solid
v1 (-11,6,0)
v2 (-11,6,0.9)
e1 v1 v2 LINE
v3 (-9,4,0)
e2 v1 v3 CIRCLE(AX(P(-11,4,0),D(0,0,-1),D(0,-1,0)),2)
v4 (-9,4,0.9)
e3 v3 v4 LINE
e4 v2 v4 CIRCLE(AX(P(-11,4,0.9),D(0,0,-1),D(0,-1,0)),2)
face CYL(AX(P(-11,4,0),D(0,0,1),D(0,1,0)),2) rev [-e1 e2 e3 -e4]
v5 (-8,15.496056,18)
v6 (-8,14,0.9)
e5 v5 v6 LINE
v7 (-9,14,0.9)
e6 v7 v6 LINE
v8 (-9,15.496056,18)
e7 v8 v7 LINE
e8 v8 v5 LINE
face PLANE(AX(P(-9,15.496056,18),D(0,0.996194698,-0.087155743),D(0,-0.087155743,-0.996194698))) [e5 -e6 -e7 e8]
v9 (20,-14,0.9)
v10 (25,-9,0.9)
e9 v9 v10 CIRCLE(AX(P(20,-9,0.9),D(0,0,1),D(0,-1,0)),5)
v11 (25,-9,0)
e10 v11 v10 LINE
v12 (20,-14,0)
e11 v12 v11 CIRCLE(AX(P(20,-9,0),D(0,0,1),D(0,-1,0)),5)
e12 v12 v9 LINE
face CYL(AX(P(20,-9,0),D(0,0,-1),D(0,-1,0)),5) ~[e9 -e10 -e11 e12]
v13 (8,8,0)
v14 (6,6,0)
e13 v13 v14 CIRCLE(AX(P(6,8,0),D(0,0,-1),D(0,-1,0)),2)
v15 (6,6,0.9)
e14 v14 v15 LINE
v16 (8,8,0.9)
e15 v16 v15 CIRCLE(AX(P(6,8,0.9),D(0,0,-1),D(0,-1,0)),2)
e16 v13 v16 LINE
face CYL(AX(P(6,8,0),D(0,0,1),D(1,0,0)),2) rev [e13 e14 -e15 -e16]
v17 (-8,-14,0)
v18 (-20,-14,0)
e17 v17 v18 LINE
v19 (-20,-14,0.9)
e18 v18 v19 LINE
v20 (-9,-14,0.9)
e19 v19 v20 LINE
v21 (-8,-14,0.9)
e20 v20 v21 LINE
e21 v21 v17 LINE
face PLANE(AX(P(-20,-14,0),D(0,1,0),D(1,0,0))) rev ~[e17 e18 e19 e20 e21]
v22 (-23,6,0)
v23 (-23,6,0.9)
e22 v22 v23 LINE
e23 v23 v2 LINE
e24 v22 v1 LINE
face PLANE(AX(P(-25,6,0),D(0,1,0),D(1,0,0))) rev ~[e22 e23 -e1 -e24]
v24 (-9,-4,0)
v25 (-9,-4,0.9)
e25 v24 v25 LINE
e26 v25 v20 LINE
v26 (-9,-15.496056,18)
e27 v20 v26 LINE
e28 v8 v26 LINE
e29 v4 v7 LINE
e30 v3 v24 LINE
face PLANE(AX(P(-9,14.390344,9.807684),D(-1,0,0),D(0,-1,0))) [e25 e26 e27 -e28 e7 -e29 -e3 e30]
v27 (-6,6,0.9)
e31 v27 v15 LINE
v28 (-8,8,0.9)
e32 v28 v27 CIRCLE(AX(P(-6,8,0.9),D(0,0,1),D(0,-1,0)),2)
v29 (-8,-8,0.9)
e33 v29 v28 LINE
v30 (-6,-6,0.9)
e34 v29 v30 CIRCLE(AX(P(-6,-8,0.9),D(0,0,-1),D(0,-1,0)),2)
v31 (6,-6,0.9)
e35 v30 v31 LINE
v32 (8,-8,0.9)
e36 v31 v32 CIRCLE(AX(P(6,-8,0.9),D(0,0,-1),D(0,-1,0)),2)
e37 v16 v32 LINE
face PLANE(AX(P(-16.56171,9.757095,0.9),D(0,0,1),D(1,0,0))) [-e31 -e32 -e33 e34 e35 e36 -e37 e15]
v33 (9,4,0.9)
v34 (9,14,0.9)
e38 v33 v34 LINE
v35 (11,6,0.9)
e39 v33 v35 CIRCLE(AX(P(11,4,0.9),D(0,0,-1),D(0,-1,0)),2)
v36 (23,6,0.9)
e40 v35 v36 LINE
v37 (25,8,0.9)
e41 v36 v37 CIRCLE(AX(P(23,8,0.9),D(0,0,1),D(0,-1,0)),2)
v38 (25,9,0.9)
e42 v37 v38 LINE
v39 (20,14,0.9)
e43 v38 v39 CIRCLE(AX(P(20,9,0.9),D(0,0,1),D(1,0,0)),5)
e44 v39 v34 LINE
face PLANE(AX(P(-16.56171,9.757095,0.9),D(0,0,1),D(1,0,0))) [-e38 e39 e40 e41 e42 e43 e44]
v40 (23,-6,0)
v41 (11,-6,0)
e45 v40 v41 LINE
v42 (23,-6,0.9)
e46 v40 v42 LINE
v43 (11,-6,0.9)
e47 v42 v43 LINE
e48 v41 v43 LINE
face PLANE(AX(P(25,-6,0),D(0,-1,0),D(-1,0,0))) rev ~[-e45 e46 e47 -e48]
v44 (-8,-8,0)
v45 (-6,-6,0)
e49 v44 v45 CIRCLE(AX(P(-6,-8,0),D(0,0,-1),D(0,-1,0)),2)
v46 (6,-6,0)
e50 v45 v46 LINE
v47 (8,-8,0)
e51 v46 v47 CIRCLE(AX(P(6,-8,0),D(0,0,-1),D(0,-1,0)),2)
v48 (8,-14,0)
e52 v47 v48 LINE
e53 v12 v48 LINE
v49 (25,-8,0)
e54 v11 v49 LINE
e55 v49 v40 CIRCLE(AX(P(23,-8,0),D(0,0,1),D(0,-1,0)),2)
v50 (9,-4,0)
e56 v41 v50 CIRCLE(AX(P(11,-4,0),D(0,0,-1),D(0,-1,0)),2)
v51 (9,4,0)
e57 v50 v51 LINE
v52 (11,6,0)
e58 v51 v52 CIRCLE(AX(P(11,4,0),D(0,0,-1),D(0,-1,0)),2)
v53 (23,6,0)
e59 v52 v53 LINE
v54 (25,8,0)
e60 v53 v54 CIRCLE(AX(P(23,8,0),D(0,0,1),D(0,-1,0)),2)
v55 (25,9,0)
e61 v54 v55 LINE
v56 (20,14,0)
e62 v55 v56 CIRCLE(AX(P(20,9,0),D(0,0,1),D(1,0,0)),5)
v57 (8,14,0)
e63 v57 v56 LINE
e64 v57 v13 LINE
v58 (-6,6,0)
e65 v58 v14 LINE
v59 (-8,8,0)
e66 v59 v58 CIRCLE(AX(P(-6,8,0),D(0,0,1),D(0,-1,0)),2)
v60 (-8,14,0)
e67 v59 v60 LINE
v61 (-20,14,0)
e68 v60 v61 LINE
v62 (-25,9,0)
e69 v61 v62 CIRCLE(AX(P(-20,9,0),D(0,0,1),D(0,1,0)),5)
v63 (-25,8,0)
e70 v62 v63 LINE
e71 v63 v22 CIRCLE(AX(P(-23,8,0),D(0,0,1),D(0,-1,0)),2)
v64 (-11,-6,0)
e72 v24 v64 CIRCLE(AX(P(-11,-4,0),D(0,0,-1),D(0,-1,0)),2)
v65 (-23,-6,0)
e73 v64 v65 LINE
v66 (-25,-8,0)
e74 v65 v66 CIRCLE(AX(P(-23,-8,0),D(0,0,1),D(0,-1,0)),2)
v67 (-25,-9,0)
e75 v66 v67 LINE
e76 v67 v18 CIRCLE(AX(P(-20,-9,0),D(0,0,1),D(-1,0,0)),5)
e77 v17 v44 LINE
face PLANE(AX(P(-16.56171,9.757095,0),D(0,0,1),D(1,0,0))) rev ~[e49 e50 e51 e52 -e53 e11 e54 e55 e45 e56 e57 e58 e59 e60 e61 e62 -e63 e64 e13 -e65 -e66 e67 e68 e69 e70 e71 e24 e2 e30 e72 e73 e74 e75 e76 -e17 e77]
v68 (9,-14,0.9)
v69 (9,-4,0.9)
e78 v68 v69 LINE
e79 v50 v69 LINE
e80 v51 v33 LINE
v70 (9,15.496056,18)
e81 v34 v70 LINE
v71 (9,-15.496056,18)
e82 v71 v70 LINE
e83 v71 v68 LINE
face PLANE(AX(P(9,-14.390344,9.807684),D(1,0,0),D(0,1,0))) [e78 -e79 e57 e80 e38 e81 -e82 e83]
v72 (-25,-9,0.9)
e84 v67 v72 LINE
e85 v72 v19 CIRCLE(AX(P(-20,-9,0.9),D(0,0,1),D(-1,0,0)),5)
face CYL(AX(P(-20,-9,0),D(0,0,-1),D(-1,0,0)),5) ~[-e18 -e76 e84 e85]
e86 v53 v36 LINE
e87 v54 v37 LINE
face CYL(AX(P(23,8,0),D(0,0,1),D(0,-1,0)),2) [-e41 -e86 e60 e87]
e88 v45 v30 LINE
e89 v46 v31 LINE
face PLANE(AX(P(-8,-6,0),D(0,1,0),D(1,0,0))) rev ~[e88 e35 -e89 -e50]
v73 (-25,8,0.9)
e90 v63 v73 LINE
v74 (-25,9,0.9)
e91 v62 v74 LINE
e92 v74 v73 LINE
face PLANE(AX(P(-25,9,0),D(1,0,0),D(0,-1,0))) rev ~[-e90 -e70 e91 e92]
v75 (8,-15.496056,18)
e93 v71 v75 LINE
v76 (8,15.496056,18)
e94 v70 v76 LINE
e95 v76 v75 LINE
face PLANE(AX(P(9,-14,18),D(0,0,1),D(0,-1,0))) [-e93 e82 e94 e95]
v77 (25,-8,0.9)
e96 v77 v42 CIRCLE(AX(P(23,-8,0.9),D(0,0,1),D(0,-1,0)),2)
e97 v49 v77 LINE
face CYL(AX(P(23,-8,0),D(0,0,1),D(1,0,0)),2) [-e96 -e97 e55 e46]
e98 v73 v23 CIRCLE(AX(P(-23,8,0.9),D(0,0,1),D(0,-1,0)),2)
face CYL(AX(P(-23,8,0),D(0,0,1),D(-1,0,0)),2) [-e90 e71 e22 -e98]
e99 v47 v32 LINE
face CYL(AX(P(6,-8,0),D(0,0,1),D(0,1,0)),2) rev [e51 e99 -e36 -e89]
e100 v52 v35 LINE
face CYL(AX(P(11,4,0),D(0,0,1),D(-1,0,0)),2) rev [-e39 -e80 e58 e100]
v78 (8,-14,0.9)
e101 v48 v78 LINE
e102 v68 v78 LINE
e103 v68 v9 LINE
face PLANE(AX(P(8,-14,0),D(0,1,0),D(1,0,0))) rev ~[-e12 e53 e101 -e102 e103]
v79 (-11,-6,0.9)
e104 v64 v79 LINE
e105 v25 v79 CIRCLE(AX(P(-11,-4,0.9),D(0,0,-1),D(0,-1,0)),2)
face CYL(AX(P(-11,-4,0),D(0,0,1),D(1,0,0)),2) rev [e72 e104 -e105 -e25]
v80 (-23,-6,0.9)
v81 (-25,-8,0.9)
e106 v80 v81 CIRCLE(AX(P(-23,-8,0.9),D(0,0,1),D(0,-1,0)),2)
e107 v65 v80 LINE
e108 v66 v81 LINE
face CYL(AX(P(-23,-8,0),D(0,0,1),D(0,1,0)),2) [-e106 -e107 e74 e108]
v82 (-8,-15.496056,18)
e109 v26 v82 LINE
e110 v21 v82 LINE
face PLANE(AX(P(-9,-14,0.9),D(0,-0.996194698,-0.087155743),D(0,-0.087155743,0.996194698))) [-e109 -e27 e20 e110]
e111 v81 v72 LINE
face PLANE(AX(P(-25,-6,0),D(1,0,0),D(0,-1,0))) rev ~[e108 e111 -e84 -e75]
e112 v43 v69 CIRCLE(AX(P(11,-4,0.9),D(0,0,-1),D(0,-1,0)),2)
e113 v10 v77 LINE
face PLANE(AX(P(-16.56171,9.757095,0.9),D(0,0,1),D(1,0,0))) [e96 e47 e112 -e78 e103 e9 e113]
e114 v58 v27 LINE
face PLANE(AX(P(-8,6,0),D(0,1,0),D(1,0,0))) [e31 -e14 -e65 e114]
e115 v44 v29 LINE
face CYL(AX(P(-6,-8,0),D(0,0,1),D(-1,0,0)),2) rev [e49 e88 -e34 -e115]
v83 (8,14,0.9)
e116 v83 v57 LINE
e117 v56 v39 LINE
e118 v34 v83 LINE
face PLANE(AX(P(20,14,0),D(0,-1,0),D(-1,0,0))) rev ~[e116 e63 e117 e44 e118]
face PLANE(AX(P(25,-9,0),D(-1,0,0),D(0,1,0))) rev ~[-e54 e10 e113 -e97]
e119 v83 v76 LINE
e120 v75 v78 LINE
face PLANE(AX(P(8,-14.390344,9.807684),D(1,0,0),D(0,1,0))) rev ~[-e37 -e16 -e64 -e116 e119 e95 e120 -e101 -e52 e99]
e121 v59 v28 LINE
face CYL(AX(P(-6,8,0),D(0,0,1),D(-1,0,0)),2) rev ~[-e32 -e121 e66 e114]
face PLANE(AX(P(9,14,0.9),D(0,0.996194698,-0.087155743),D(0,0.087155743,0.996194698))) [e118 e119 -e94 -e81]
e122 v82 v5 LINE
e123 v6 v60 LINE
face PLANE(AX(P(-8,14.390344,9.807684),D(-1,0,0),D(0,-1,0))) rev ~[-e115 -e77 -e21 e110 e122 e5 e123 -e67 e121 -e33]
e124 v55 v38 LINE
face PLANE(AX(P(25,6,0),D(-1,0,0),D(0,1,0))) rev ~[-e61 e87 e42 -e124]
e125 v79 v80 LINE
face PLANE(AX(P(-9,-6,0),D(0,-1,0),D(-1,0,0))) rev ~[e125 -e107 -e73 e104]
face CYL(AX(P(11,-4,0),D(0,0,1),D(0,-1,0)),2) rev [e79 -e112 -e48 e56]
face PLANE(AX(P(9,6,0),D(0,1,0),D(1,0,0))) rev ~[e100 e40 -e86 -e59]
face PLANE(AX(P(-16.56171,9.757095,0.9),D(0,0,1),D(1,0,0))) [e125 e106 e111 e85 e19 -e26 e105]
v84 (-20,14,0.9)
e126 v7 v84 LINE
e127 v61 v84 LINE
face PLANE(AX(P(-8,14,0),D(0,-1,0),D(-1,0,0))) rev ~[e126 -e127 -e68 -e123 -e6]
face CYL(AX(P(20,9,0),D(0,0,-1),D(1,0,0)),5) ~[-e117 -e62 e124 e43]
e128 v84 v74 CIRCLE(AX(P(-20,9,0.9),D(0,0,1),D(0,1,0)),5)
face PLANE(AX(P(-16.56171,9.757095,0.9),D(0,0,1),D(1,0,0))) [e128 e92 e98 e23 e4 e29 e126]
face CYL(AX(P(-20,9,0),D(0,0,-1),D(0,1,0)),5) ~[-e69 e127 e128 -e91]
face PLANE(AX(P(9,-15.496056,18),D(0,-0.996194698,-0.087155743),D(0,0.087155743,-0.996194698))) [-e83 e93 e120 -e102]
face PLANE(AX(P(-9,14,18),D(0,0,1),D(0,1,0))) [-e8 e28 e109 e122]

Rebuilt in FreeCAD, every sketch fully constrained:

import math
import FreeCAD as App
import Part
import Sketcher
Q = App.Units.Quantity


def edges_at(feature, points):
    """Names of the edges that pass closest to the given points."""
    edges = feature.Shape.Edges
    near = lambda p: min(range(len(edges)), key=lambda i: edges[i].distToShape(Part.Vertex(*p))[0])
    return sorted({f"Edge{near(p) + 1}" for p in points})


def add_polygon(sketch, points):
    """Adds a closed chain of lines whose ends are joined by coincident constraints."""
    first, n = sketch.GeometryCount, len(points)
    for a, b in zip(points, points[1:] + points[:1]):
        sketch.addGeometry(Part.LineSegment(App.Vector(*a, 0), App.Vector(*b, 0)), False)
    for i in range(n):
        sketch.addConstraint(Sketcher.Constraint("Coincident", first + i, 2, first + (i + 1) % n, 1))

doc = App.newDocument("Part")
body = doc.addObject("PartDesign::Body", "Body")

# Sketch on XY plane
sketch1 = body.newObject("Sketcher::SketchObject", "Sketch")
sketch1.AttachmentSupport = (doc.getObject("XY_Plane"), [""])
sketch1.MapMode = "FlatFace"
sketch1.addGeometry([
    Part.ArcOfCircle(Part.Circle(App.Vector(-20, 9, 0), App.Vector(0, 0, 1), 5), math.radians(90), math.radians(180)),  # 0
    Part.LineSegment(App.Vector(-25, 9, 0), App.Vector(-25, 6, 0)),  # 1
    Part.LineSegment(App.Vector(-25, 6, 0), App.Vector(-9, 6, 0)),  # 2
    Part.LineSegment(App.Vector(-9, 6, 0), App.Vector(-9, -6, 0)),  # 3
    Part.LineSegment(App.Vector(-9, -6, 0), App.Vector(-25, -6, 0)),  # 4
    Part.LineSegment(App.Vector(-25, -6, 0), App.Vector(-25, -9, 0)),  # 5
    Part.ArcOfCircle(Part.Circle(App.Vector(-20, -9, 0), App.Vector(0, 0, 1), 5), math.radians(180), math.radians(270)),  # 6
    Part.LineSegment(App.Vector(-20, -14, 0), App.Vector(-8, -14, 0)),  # 7
    Part.LineSegment(App.Vector(-8, -14, 0), App.Vector(-8, -6, 0)),  # 8
    Part.LineSegment(App.Vector(-8, -6, 0), App.Vector(8, -6, 0)),  # 9
    Part.LineSegment(App.Vector(8, -6, 0), App.Vector(8, -14, 0)),  # 10
    Part.LineSegment(App.Vector(8, -14, 0), App.Vector(20, -14, 0)),  # 11
    Part.ArcOfCircle(Part.Circle(App.Vector(20, -9, 0), App.Vector(0, 0, 1), 5), math.radians(-90), math.radians(0)),  # 12
    Part.LineSegment(App.Vector(25, -9, 0), App.Vector(25, -6, 0)),  # 13
    Part.LineSegment(App.Vector(25, -6, 0), App.Vector(9, -6, 0)),  # 14
    Part.LineSegment(App.Vector(9, -6, 0), App.Vector(9, 6, 0)),  # 15
    Part.LineSegment(App.Vector(9, 6, 0), App.Vector(25, 6, 0)),  # 16
    Part.LineSegment(App.Vector(25, 6, 0), App.Vector(25, 9, 0)),  # 17
    Part.ArcOfCircle(Part.Circle(App.Vector(20, 9, 0), App.Vector(0, 0, 1), 5), math.radians(0), math.radians(90)),  # 18
    Part.LineSegment(App.Vector(20, 14, 0), App.Vector(8, 14, 0)),  # 19
    Part.LineSegment(App.Vector(8, 14, 0), App.Vector(8, 6, 0)),  # 20
    Part.LineSegment(App.Vector(8, 6, 0), App.Vector(-8, 6, 0)),  # 21
    Part.LineSegment(App.Vector(-8, 6, 0), App.Vector(-8, 14, 0)),  # 22
    Part.LineSegment(App.Vector(-8, 14, 0), App.Vector(-20, 14, 0)),  # 23
], False)
sketch1.addConstraint([
    Sketcher.Constraint("Tangent", 0, 2, 1, 1),
    Sketcher.Constraint("Coincident", 1, 2, 2, 1),
    Sketcher.Constraint("Coincident", 2, 2, 3, 1),
    Sketcher.Constraint("Coincident", 3, 2, 4, 1),
    Sketcher.Constraint("Coincident", 4, 2, 5, 1),
    Sketcher.Constraint("Tangent", 5, 2, 6, 1),
    Sketcher.Constraint("Tangent", 6, 2, 7, 1),
    Sketcher.Constraint("Coincident", 7, 2, 8, 1),
    Sketcher.Constraint("Coincident", 8, 2, 9, 1),
    Sketcher.Constraint("Coincident", 9, 2, 10, 1),
    Sketcher.Constraint("Coincident", 10, 2, 11, 1),
    Sketcher.Constraint("Tangent", 11, 2, 12, 1),
    Sketcher.Constraint("Tangent", 12, 2, 13, 1),
    Sketcher.Constraint("Coincident", 13, 2, 14, 1),
    Sketcher.Constraint("Coincident", 14, 2, 15, 1),
    Sketcher.Constraint("Coincident", 15, 2, 16, 1),
    Sketcher.Constraint("Coincident", 16, 2, 17, 1),
    Sketcher.Constraint("Tangent", 17, 2, 18, 1),
    Sketcher.Constraint("Tangent", 18, 2, 19, 1),
    Sketcher.Constraint("Coincident", 19, 2, 20, 1),
    Sketcher.Constraint("Coincident", 20, 2, 21, 1),
    Sketcher.Constraint("Coincident", 21, 2, 22, 1),
    Sketcher.Constraint("Coincident", 22, 2, 23, 1),
    Sketcher.Constraint("Tangent", 23, 2, 0, 1),
    Sketcher.Constraint("Vertical", 1),
    Sketcher.Constraint("Horizontal", 2),
    Sketcher.Constraint("Vertical", 3),
    Sketcher.Constraint("Horizontal", 4),
    Sketcher.Constraint("Vertical", 5),
    Sketcher.Constraint("Horizontal", 7),
    Sketcher.Constraint("Vertical", 8),
    Sketcher.Constraint("Horizontal", 9),
    Sketcher.Constraint("Vertical", 10),
    Sketcher.Constraint("Horizontal", 11),
    Sketcher.Constraint("Vertical", 13),
    Sketcher.Constraint("Horizontal", 14),
    Sketcher.Constraint("Vertical", 15),
    Sketcher.Constraint("Horizontal", 16),
    Sketcher.Constraint("Vertical", 17),
    Sketcher.Constraint("Horizontal", 19),
    Sketcher.Constraint("Vertical", 20),
    Sketcher.Constraint("Horizontal", 21),
    Sketcher.Constraint("Vertical", 22),
    Sketcher.Constraint("Horizontal", 23),
    Sketcher.Constraint("Equal", 0, 6),
    Sketcher.Constraint("Equal", 6, 12),
    Sketcher.Constraint("Equal", 12, 18),
    Sketcher.Constraint("Symmetric", 0, 3, 12, 3, -1, 1),
    Sketcher.Constraint("Symmetric", 6, 3, 18, 3, -1, 1),
    Sketcher.Constraint("Symmetric", 2, 2, 14, 2, -1, 1),
    Sketcher.Constraint("Symmetric", 8, 2, 20, 2, -1, 1),
    Sketcher.Constraint("Symmetric", 6, 3, 12, 3, -2),
    Sketcher.Constraint("Horizontal", 4, 2, 8, 2),
    Sketcher.Constraint("Horizontal", 9, 2, 13, 2),
    Sketcher.Constraint("Horizontal", 2, 2, 15, 2),
    Sketcher.Constraint("Vertical", 10, 2, 19, 2),
    Sketcher.Constraint("Vertical", 8, 2, 21, 2),
    Sketcher.Constraint("Equal", 4, 9),
    Sketcher.Constraint("Equal", 23, 3),
    Sketcher.Constraint("Radius", 0, Q("5 mm")),
    Sketcher.Constraint("DistanceX", 2, 1, 2, 2, Q("16 mm")),
    Sketcher.Constraint("DistanceX", 7, 1, 7, 2, Q("12 mm")),
    Sketcher.Constraint("DistanceY", 1, 2, 1, 1, Q("3 mm")),
])
pad1 = body.newObject("PartDesign::Pad", "Pad")
pad1.Profile = sketch1
pad1.Length = 0.9

# Sketch on XY plane
sketch2 = body.newObject("Sketcher::SketchObject", "Sketch001")
sketch2.AttachmentSupport = (doc.getObject("XY_Plane"), [""])
sketch2.MapMode = "FlatFace"
add_polygon(sketch2, [(-9, -14), (-8, -14), (-8, 14), (-9, 14)])  # lines 0-3
add_polygon(sketch2, [(8, 14), (8, -14), (9, -14), (9, 14)])  # lines 4-7
sketch2.addConstraint([
    Sketcher.Constraint("Horizontal", 0),
    Sketcher.Constraint("Vertical", 1),
    Sketcher.Constraint("Horizontal", 2),
    Sketcher.Constraint("Vertical", 3),
    Sketcher.Constraint("Vertical", 4),
    Sketcher.Constraint("Horizontal", 5),
    Sketcher.Constraint("Vertical", 6),
    Sketcher.Constraint("Horizontal", 7),
    Sketcher.Constraint("Symmetric", 1, 2, 4, 2, -1, 1),
    Sketcher.Constraint("Symmetric", 3, 2, 6, 2, -1, 1),
    Sketcher.Constraint("Horizontal", 3, 2, 4, 2),
    Sketcher.Constraint("DistanceX", 0, 1, 0, 2, Q("1 mm")),
    Sketcher.Constraint("DistanceY", 1, 1, 1, 2, Q("28 mm")),
    Sketcher.Constraint("DistanceX", 0, 2, -1, 1, Q("8 mm")),
])
pad2 = body.newObject("PartDesign::Pad", "Pad001")
pad2.Profile = sketch2
pad2.Length = 18
doc.recompute()

fillet = body.newObject("PartDesign::Fillet", "Fillet")
fillet.Base = (pad2, edges_at(pad2, [
    (-25, 6, 0.45),
    (-9, 6, 0.45),
    (-9, -6, 0.45),
    (-25, -6, 0.45),
    (-8, 6, 0.45),
    (8, 6, 0.45),
    (25, 6, 0.45),
    (25, -6, 0.45),
    (9, 6, 0.45),
    (9, -6, 0.45),
    (8, -6, 0.45),
    (-8, -6, 0.45),
]))
fillet.Radius = 2

# Sketch on YZ plane
sketch3 = body.newObject("Sketcher::SketchObject", "Sketch002")
sketch3.AttachmentSupport = (doc.getObject("YZ_Plane"), [""])
sketch3.MapMode = "FlatFace"
sketch3.AttachmentOffset = App.Placement(App.Vector(0, 0, 9), App.Rotation())
add_polygon(sketch3, [(-15.5, 18), (-14, 0.9), (-14, 18)])  # lines 0-2
add_polygon(sketch3, [(15.5, 18), (14, 18), (14, 0.9)])  # lines 3-5
sketch3.addConstraint([
    Sketcher.Constraint("Vertical", 1),
    Sketcher.Constraint("Horizontal", 2),
    Sketcher.Constraint("Horizontal", 3),
    Sketcher.Constraint("Vertical", 4),
    Sketcher.Constraint("Symmetric", 1, 2, 3, 2, -2),
    Sketcher.Constraint("Horizontal", 0, 2, 4, 2),
    Sketcher.Constraint("Equal", 2, 3),
    Sketcher.Constraint("Angle", 0, Q("-85 deg")),
    Sketcher.Constraint("DistanceY", 1, 1, 1, 2, Q("17.1 mm")),
    Sketcher.Constraint("DistanceX", 0, 2, -1, 1, Q("14 mm")),
    Sketcher.Constraint("DistanceY", -1, 1, 1, 2, Q("18 mm")),
])
pad3 = body.newObject("PartDesign::Pad", "Pad002")
pad3.Profile = sketch3
pad3.Length = 1
pad3.Reversed = True

# Sketch on YZ plane
sketch4 = body.newObject("Sketcher::SketchObject", "Sketch003")
sketch4.AttachmentSupport = (doc.getObject("YZ_Plane"), [""])
sketch4.MapMode = "FlatFace"
sketch4.AttachmentOffset = App.Placement(App.Vector(0, 0, -9), App.Rotation())
add_polygon(sketch4, [(14, 0.9), (14, 18), (15.5, 18)])  # lines 0-2
add_polygon(sketch4, [(-15.5, 18), (-14, 18), (-14, 0.9)])  # lines 3-5
sketch4.addConstraint([
    Sketcher.Constraint("Vertical", 0),
    Sketcher.Constraint("Horizontal", 1),
    Sketcher.Constraint("Horizontal", 3),
    Sketcher.Constraint("Vertical", 4),
    Sketcher.Constraint("Symmetric", 0, 2, 3, 2, -2),
    Sketcher.Constraint("Horizontal", 2, 2, 4, 2),
    Sketcher.Constraint("Equal", 1, 3),
    Sketcher.Constraint("Angle", 2, Q("-95 deg")),
    Sketcher.Constraint("DistanceY", 0, 1, 0, 2, Q("17.1 mm")),
    Sketcher.Constraint("DistanceX", -1, 1, 0, 2, Q("14 mm")),
    Sketcher.Constraint("DistanceY", -1, 1, 0, 2, Q("18 mm")),
])
pad4 = body.newObject("PartDesign::Pad", "Pad003")
pad4.Profile = sketch4
pad4.Length = 1

doc.recompute()
